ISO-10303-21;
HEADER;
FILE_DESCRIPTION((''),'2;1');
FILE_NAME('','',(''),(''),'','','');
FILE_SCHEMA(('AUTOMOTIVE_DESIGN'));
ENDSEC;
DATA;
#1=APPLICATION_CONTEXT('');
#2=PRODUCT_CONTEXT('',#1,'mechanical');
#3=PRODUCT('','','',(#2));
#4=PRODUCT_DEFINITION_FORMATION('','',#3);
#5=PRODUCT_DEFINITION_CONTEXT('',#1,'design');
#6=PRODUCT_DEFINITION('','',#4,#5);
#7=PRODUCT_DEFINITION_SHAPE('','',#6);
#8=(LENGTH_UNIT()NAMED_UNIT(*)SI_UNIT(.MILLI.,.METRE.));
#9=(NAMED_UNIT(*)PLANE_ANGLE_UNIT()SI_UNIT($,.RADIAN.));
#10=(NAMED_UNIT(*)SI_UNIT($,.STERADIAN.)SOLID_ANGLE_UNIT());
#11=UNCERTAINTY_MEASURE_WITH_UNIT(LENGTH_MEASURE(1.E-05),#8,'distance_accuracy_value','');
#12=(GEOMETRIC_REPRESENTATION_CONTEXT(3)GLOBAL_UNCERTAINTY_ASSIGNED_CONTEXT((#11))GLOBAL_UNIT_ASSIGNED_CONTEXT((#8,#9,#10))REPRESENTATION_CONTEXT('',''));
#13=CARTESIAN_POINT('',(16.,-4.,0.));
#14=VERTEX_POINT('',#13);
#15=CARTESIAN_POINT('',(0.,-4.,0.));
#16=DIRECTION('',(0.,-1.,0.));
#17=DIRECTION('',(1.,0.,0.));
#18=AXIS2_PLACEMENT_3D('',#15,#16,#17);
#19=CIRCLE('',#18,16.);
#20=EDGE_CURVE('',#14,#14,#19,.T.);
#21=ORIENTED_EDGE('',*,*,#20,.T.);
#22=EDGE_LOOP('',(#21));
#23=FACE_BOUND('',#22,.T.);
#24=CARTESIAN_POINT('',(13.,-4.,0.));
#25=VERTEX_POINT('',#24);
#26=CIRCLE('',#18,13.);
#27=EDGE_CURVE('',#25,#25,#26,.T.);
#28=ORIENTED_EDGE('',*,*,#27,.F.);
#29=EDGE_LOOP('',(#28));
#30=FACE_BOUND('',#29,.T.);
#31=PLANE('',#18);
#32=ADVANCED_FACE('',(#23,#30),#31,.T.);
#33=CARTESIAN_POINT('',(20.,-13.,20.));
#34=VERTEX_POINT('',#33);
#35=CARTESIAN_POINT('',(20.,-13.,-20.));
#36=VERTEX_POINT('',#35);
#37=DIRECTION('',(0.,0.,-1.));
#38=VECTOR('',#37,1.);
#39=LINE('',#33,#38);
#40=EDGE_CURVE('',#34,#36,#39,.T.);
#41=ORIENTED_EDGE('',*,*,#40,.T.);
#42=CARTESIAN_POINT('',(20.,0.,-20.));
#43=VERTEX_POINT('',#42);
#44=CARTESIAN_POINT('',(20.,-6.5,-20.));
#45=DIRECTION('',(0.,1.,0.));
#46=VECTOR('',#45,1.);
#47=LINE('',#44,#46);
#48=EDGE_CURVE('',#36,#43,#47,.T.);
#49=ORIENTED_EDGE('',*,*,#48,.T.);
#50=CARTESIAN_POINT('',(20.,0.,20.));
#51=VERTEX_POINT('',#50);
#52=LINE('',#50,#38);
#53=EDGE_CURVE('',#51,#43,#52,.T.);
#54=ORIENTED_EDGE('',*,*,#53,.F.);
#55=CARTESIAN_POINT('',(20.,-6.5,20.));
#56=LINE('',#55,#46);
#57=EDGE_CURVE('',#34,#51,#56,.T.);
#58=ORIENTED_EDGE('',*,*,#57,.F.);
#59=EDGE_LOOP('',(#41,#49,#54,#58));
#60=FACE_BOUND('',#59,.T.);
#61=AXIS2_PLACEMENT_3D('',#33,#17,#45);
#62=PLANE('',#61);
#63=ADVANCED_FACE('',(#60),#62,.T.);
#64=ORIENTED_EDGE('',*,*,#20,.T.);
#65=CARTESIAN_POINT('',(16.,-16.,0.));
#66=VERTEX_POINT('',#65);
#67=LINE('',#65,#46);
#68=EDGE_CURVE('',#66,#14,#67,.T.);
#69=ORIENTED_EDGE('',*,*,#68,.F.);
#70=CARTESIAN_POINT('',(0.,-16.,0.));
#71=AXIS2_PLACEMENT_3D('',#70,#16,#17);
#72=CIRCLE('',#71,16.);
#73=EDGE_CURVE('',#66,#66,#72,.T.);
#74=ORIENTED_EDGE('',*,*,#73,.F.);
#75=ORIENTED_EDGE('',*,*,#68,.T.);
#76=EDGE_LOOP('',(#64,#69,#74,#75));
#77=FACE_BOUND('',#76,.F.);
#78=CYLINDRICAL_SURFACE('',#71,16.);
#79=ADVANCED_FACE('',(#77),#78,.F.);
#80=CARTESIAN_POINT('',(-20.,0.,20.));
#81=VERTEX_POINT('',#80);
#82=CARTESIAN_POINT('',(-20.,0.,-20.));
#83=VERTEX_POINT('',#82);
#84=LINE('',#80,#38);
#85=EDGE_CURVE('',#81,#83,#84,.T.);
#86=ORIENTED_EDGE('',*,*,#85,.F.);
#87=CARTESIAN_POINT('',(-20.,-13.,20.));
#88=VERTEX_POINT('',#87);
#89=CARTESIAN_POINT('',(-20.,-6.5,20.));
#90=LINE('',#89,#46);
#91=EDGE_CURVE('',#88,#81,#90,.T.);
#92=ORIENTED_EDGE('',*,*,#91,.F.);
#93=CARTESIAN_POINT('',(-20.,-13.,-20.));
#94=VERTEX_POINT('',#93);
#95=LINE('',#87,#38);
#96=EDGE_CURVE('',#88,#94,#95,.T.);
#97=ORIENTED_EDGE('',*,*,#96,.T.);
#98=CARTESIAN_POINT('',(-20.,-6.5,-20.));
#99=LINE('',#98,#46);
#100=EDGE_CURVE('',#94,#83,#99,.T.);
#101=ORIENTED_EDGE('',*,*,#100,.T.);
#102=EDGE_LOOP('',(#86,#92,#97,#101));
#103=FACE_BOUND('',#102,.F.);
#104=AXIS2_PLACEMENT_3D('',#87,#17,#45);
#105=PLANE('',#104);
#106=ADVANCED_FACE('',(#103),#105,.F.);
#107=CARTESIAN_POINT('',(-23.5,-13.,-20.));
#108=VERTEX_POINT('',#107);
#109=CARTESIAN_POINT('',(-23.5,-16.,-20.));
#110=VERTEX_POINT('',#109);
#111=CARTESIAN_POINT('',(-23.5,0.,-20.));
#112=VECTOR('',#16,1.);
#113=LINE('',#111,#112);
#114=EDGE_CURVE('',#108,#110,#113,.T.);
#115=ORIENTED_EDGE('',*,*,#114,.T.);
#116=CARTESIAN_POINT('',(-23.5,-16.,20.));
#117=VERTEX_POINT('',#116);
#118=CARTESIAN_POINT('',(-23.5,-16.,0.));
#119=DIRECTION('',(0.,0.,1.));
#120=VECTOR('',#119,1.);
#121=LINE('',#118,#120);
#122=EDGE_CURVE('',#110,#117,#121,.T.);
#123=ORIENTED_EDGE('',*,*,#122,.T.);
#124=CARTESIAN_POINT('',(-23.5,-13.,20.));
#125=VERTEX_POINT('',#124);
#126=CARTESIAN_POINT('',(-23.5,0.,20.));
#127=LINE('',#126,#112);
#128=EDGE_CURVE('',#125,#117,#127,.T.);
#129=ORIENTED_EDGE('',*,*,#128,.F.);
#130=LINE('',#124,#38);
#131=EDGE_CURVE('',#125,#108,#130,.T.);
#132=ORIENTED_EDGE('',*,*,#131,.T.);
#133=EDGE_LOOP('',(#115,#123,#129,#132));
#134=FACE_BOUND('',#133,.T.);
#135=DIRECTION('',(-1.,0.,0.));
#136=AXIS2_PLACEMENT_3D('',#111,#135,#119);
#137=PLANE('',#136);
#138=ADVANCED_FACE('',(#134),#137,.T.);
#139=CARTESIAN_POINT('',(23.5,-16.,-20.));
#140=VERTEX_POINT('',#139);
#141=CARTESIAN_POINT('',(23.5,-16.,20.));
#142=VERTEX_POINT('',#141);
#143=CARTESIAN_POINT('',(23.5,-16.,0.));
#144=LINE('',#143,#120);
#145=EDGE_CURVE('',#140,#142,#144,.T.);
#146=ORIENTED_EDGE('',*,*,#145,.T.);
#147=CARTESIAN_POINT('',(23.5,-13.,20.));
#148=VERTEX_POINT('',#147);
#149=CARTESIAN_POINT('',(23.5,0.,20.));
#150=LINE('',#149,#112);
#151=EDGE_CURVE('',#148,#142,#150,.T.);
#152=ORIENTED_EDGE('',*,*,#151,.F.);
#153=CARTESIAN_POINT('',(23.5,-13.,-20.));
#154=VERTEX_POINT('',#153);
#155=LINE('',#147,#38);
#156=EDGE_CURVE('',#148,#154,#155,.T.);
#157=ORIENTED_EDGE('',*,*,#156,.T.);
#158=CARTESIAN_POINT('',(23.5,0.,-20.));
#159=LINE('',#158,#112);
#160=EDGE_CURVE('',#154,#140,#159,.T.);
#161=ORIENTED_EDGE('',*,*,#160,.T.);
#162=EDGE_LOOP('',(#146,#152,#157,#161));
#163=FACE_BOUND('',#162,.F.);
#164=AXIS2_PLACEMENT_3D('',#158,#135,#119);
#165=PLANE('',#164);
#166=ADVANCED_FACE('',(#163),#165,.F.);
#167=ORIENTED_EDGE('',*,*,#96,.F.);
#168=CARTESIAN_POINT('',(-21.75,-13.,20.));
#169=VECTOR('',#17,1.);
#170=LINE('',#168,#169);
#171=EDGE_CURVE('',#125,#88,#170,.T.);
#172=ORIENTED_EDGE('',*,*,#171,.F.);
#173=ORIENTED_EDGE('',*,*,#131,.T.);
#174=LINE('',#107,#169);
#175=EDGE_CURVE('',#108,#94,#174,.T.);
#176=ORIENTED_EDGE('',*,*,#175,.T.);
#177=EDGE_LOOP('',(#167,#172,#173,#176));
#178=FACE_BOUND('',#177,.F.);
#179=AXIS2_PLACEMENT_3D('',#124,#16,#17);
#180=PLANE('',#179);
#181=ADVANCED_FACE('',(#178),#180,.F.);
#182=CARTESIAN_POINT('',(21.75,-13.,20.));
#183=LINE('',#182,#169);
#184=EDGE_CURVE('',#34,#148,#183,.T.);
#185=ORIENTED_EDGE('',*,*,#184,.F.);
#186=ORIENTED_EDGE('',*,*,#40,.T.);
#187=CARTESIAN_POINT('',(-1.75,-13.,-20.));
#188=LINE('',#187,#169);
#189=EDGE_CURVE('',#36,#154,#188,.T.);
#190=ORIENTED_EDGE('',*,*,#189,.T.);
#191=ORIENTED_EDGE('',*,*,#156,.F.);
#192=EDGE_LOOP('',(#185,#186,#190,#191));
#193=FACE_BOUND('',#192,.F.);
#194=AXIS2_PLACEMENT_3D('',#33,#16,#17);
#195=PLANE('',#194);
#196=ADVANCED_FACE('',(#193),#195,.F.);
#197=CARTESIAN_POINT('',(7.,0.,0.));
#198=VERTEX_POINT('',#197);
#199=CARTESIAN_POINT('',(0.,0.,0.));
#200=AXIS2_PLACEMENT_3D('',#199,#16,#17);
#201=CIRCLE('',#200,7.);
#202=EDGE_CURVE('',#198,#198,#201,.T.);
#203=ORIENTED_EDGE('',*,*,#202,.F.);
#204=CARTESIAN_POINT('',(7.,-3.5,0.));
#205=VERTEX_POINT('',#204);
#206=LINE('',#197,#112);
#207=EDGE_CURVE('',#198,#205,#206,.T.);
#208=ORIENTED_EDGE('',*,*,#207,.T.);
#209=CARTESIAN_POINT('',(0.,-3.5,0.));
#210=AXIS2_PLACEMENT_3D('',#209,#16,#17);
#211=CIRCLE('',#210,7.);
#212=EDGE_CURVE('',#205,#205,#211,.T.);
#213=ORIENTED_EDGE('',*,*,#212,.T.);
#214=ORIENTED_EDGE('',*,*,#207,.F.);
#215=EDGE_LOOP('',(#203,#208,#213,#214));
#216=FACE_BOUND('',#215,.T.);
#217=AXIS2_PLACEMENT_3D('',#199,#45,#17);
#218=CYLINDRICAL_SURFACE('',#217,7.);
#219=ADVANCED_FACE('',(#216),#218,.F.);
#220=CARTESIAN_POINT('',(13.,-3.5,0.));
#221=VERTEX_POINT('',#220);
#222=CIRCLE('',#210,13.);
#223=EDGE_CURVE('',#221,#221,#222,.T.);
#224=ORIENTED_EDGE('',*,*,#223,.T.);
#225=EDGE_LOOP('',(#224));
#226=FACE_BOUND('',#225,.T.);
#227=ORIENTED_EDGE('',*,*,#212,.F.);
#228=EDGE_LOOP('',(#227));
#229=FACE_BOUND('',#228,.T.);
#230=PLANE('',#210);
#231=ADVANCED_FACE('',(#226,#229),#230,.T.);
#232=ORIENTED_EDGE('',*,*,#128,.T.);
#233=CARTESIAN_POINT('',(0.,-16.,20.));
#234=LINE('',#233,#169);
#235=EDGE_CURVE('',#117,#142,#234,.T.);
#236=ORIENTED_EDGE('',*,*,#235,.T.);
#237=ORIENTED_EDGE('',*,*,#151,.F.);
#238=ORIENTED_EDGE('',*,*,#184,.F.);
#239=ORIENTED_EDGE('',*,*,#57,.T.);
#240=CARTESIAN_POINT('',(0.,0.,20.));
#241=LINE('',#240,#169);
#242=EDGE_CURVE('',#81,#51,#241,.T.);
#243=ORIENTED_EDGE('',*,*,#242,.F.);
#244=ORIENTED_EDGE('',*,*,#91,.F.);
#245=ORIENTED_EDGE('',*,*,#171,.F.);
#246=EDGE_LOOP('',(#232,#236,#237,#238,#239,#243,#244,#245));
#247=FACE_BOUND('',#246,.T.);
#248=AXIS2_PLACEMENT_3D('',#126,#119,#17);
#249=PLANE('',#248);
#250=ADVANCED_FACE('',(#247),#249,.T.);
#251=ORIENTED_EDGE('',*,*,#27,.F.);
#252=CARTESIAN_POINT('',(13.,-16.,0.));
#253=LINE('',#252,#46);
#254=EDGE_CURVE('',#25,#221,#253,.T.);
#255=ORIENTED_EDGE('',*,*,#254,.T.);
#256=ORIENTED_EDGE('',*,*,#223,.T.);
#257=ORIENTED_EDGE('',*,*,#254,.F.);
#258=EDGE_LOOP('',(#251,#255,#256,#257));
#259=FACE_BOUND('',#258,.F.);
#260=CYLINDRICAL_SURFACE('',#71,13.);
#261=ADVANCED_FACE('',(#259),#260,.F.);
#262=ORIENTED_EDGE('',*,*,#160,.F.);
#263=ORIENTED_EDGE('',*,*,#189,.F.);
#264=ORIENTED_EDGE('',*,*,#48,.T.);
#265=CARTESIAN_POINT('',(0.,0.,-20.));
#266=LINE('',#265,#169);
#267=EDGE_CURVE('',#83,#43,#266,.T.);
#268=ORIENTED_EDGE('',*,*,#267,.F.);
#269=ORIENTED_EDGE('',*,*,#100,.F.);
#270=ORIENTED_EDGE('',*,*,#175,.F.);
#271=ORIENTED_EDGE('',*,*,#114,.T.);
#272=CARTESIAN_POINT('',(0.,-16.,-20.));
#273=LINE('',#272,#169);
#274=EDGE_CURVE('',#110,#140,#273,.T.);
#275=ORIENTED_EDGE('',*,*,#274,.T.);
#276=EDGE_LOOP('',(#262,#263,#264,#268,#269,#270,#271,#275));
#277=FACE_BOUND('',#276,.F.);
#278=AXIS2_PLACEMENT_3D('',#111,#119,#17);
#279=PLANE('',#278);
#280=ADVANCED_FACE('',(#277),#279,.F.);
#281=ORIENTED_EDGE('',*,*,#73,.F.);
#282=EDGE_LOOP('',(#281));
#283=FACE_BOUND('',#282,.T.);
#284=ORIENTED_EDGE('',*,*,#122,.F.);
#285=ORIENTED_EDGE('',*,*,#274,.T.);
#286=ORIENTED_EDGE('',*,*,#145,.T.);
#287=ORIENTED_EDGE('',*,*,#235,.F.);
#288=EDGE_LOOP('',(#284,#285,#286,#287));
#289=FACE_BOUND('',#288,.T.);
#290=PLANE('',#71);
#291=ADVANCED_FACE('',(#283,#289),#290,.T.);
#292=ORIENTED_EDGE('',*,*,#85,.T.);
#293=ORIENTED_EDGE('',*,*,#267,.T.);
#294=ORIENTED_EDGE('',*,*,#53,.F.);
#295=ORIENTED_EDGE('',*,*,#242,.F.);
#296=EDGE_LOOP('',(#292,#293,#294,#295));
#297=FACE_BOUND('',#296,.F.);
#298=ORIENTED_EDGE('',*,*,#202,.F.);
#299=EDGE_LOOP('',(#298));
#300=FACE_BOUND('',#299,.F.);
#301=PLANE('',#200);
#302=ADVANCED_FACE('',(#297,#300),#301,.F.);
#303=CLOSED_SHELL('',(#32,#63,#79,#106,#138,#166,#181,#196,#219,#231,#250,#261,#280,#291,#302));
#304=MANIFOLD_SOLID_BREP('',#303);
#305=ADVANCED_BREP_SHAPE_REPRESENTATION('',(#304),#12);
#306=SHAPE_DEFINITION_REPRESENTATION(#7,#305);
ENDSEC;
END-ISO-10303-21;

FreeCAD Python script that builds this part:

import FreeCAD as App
import Part
import Sketcher

V = App.Vector
Q = App.Units.Quantity

doc = App.newDocument("Part")
body = doc.addObject("PartDesign::Body", "Body")

# Sketch on XZ plane
sketch1 = doc.addObject("Sketcher::SketchObject", "Sketch")
body.addObject(sketch1)
sketch1.AttachmentSupport = (doc.XZ_Plane, [""])
sketch1.MapMode = "FlatFace"
sketch1.addGeometry([
    Part.LineSegment(V(-23.5, 20, 0), V(-23.5, -20, 0)),  # 0
    Part.LineSegment(V(-23.5, -20, 0), V(23.5, -20, 0)),  # 1
    Part.LineSegment(V(23.5, -20, 0), V(23.5, 20, 0)),  # 2
    Part.LineSegment(V(23.5, 20, 0), V(-23.5, 20, 0)),  # 3
    Part.Circle(V(0, 0, 0), V(0, 0, 1), 7),  # 4
], False)
sketch1.addConstraint([
    Sketcher.Constraint("Coincident", 0, 2, 1, 1),
    Sketcher.Constraint("Coincident", 1, 2, 2, 1),
    Sketcher.Constraint("Coincident", 2, 2, 3, 1),
    Sketcher.Constraint("Coincident", 3, 2, 0, 1),
    Sketcher.Constraint("Vertical", 0),
    Sketcher.Constraint("Horizontal", 1),
    Sketcher.Constraint("Vertical", 2),
    Sketcher.Constraint("Horizontal", 3),
    Sketcher.Constraint("Coincident", 4, 3, -1, 1),
    Sketcher.Constraint("Symmetric", 0, 2, 2, 2, -1, 1),
    Sketcher.Constraint("Diameter", 4, Q("14 mm")),
    Sketcher.Constraint("DistanceX", 1, 1, 1, 2, Q("47 mm")),
    Sketcher.Constraint("DistanceY", 0, 2, 0, 1, Q("40 mm")),
])
pad1 = doc.addObject("PartDesign::Pad", "Pad")
body.addObject(pad1)
pad1.Profile = sketch1
pad1.Length = 16

# Sketch on XY plane
sketch2 = doc.addObject("Sketcher::SketchObject", "Sketch001")
body.addObject(sketch2)
sketch2.AttachmentSupport = (doc.XY_Plane, [""])
sketch2.MapMode = "FlatFace"
sketch2.AttachmentOffset = App.Placement(V(0, 0, 20), App.Rotation())
sketch2.addGeometry([
    Part.LineSegment(V(-23.5, 0, 0), V(-23.5, -13, 0)),  # 0
    Part.LineSegment(V(-23.5, -13, 0), V(-20, -13, 0)),  # 1
    Part.LineSegment(V(-20, -13, 0), V(-20, 0, 0)),  # 2
    Part.LineSegment(V(-20, 0, 0), V(-23.5, 0, 0)),  # 3
    Part.LineSegment(V(20, 0, 0), V(20, -13, 0)),  # 4
    Part.LineSegment(V(20, -13, 0), V(23.5, -13, 0)),  # 5
    Part.LineSegment(V(23.5, -13, 0), V(23.5, 0, 0)),  # 6
    Part.LineSegment(V(23.5, 0, 0), V(20, 0, 0)),  # 7
], False)
sketch2.addConstraint([
    Sketcher.Constraint("Coincident", 0, 2, 1, 1),
    Sketcher.Constraint("Coincident", 1, 2, 2, 1),
    Sketcher.Constraint("Coincident", 2, 2, 3, 1),
    Sketcher.Constraint("Coincident", 3, 2, 0, 1),
    Sketcher.Constraint("Coincident", 4, 2, 5, 1),
    Sketcher.Constraint("Coincident", 5, 2, 6, 1),
    Sketcher.Constraint("Coincident", 6, 2, 7, 1),
    Sketcher.Constraint("Coincident", 7, 2, 4, 1),
    Sketcher.Constraint("Vertical", 0),
    Sketcher.Constraint("Horizontal", 1),
    Sketcher.Constraint("Vertical", 2),
    Sketcher.Constraint("Horizontal", 3),
    Sketcher.Constraint("Vertical", 4),
    Sketcher.Constraint("Horizontal", 5),
    Sketcher.Constraint("Vertical", 6),
    Sketcher.Constraint("Horizontal", 7),
    Sketcher.Constraint("Symmetric", 3, 2, 6, 2, -1, 1),
    Sketcher.Constraint("Symmetric", 1, 2, 4, 2, -2),
    Sketcher.Constraint("PointOnObject", 2, 2, -1),
    Sketcher.Constraint("DistanceY", 0, 2, 0, 1, Q("13 mm")),
    Sketcher.Constraint("DistanceX", 1, 1, 1, 2, Q("3.5 mm")),
    Sketcher.Constraint("DistanceX", 1, 2, -1, 1, Q("20 mm")),
])
pocket1 = doc.addObject("PartDesign::Pocket", "Pocket")
body.addObject(pocket1)
pocket1.Profile = sketch2
pocket1.Type = "ThroughAll"

# Sketch on XZ plane
sketch3 = doc.addObject("Sketcher::SketchObject", "Sketch002")
body.addObject(sketch3)
sketch3.AttachmentSupport = (doc.XZ_Plane, [""])
sketch3.MapMode = "FlatFace"
sketch3.AttachmentOffset = App.Placement(V(0, 0, 16), App.Rotation())
sketch3.addGeometry([
    Part.Circle(V(0, 0, 0), V(0, 0, 1), 13),
    Part.Circle(V(0, 0, 0), V(0, 0, 1), 7),
], False)
sketch3.addConstraint([
    Sketcher.Constraint("Coincident", 0, 3, -1, 1),
    Sketcher.Constraint("Coincident", 1, 3, -1, 1),
    Sketcher.Constraint("Diameter", 0, Q("26 mm")),
    Sketcher.Constraint("Diameter", 1, Q("14 mm")),
])
pocket2 = doc.addObject("PartDesign::Pocket", "Pocket001")
body.addObject(pocket2)
pocket2.Profile = sketch3
pocket2.Length = 12.5

# Sketch on XZ plane
sketch4 = doc.addObject("Sketcher::SketchObject", "Sketch003")
body.addObject(sketch4)
sketch4.AttachmentSupport = (doc.XZ_Plane, [""])
sketch4.MapMode = "FlatFace"
sketch4.AttachmentOffset = App.Placement(V(0, 0, 16), App.Rotation())
sketch4.addGeometry([
    Part.Circle(V(0, 0, 0), V(0, 0, 1), 16),
    Part.Circle(V(0, 0, 0), V(0, 0, 1), 13),
], False)
sketch4.addConstraint([
    Sketcher.Constraint("Coincident", 0, 3, -1, 1),
    Sketcher.Constraint("Coincident", 1, 3, -1, 1),
    Sketcher.Constraint("Diameter", 0, Q("32 mm")),
    Sketcher.Constraint("Diameter", 1, Q("26 mm")),
])
pocket3 = doc.addObject("PartDesign::Pocket", "Pocket002")
body.addObject(pocket3)
pocket3.Profile = sketch4
pocket3.Length = 12

doc.recompute()
